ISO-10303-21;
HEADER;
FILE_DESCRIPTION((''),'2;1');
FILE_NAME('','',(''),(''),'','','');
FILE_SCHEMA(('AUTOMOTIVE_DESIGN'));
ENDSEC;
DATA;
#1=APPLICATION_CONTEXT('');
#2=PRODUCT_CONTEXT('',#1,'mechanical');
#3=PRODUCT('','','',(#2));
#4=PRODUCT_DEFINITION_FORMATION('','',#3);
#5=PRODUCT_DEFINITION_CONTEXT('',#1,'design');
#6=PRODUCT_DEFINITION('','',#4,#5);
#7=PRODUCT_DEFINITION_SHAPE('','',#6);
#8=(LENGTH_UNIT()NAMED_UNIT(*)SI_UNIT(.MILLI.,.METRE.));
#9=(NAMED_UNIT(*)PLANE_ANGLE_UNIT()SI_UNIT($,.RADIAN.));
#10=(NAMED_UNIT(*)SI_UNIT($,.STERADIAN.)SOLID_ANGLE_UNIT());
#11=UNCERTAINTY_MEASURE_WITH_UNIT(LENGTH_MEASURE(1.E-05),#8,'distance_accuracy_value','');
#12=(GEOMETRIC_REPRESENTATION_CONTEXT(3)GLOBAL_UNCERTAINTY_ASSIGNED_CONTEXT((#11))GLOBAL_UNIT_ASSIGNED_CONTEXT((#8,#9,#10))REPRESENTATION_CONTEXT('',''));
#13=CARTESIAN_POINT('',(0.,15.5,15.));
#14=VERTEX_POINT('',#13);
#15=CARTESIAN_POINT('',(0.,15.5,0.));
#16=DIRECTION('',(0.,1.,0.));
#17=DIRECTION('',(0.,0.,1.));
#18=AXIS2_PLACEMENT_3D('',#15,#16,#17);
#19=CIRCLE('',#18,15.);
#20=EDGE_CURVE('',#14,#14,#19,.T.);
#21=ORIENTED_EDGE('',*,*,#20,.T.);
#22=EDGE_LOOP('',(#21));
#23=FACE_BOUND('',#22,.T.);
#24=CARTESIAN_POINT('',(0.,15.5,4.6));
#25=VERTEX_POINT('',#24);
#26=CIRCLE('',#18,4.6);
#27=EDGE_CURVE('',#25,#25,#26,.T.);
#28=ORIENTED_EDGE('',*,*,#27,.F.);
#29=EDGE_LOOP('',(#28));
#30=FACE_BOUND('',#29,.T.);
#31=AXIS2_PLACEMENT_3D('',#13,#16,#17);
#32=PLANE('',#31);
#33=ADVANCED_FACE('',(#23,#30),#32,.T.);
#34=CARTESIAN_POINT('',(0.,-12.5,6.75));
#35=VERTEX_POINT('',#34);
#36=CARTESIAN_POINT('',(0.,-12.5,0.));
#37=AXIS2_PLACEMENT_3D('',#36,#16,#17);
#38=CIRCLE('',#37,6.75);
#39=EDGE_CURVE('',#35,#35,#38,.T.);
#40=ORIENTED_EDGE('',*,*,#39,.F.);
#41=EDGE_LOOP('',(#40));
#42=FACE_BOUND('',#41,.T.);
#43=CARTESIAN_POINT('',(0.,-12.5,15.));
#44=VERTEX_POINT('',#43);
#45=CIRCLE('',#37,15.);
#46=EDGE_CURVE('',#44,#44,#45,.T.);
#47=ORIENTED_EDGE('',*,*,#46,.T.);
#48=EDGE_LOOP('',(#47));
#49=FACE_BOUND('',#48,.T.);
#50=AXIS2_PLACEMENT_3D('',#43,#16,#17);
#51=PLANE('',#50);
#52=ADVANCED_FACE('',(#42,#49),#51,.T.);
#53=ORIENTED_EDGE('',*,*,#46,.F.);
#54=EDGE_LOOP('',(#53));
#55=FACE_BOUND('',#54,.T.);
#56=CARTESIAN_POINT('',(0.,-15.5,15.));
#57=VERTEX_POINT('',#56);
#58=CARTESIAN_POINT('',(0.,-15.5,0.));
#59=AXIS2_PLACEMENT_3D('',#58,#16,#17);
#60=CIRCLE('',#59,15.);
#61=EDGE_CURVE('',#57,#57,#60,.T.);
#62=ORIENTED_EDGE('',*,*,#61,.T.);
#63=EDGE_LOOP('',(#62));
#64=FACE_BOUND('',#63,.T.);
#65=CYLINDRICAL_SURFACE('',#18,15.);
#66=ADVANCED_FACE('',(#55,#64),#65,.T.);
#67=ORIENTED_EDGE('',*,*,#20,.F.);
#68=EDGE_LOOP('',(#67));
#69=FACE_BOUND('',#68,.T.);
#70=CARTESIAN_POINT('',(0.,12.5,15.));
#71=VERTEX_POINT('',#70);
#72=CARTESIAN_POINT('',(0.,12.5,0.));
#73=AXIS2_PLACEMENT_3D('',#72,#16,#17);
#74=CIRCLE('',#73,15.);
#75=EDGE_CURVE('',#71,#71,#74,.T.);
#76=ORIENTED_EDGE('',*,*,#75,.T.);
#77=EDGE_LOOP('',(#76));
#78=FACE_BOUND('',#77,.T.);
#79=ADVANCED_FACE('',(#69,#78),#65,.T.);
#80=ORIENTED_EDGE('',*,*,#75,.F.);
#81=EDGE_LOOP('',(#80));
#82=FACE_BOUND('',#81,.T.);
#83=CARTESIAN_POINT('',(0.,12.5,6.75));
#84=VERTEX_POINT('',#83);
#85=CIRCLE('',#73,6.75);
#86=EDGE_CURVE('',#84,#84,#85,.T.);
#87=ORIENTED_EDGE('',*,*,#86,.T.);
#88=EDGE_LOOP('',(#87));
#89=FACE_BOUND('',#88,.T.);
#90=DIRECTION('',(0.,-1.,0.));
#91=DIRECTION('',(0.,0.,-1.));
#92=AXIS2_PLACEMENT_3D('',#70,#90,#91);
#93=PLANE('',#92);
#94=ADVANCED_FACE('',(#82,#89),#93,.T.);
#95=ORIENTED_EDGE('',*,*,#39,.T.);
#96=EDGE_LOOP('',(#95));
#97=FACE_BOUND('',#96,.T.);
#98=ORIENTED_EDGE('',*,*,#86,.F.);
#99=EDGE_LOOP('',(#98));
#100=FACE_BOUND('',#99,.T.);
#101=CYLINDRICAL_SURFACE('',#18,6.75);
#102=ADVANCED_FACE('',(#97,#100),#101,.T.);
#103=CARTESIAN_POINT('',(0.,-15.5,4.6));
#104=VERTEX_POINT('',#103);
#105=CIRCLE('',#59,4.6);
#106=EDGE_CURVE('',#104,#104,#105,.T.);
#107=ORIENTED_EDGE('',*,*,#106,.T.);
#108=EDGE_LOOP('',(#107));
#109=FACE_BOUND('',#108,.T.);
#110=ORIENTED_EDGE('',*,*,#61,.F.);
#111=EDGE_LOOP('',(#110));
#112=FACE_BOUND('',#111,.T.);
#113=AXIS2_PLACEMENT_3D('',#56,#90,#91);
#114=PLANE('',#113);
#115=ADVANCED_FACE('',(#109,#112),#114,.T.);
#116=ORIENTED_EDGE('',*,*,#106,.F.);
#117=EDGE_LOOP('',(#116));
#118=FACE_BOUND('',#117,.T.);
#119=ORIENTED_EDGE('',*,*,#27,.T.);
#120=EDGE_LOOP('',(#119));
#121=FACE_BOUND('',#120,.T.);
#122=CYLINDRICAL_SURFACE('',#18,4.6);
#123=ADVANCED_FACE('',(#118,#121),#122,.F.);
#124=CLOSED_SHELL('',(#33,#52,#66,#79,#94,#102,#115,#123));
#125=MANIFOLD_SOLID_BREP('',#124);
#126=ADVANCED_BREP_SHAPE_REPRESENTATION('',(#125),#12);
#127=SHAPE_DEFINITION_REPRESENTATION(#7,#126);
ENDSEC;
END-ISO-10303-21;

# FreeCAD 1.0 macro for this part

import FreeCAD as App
import Part
import Sketcher
Q = App.Units.Quantity

doc = App.newDocument("Part")
body = doc.addObject("PartDesign::Body", "Body")

sketch1 = body.newObject("Sketcher::SketchObject", "Sketch")
sketch1.AttachmentSupport = (doc.getObject("YZ_Plane"), [""])
sketch1.MapMode = "FlatFace"
sketch1.addGeometry([
    Part.LineSegment(App.Vector(15.5, 15, 0), App.Vector(12.5, 15, 0)),
    Part.LineSegment(App.Vector(12.5, 15, 0), App.Vector(12.5, 6.8, 0)),
    Part.LineSegment(App.Vector(12.5, 6.8, 0), App.Vector(-12.5, 6.8, 0)),
    Part.LineSegment(App.Vector(-12.5, 6.8, 0), App.Vector(-12.5, 15, 0)),
    Part.LineSegment(App.Vector(-12.5, 15, 0), App.Vector(-15.5, 15, 0)),
    Part.LineSegment(App.Vector(-15.5, 15, 0), App.Vector(-15.5, 4.6, 0)),
    Part.LineSegment(App.Vector(-15.5, 4.6, 0), App.Vector(15.5, 4.6, 0)),
    Part.LineSegment(App.Vector(15.5, 4.6, 0), App.Vector(15.5, 15, 0)),
], False)
sketch1.addConstraint([
    Sketcher.Constraint("Coincident", 0, 2, 1, 1),
    Sketcher.Constraint("Coincident", 1, 2, 2, 1),
    Sketcher.Constraint("Coincident", 2, 2, 3, 1),
    Sketcher.Constraint("Coincident", 3, 2, 4, 1),
    Sketcher.Constraint("Coincident", 4, 2, 5, 1),
    Sketcher.Constraint("Coincident", 5, 2, 6, 1),
    Sketcher.Constraint("Coincident", 6, 2, 7, 1),
    Sketcher.Constraint("Coincident", 7, 2, 0, 1),
    Sketcher.Constraint("Horizontal", 0),
    Sketcher.Constraint("Vertical", 1),
    Sketcher.Constraint("Horizontal", 2),
    Sketcher.Constraint("Vertical", 3),
    Sketcher.Constraint("Horizontal", 4),
    Sketcher.Constraint("Vertical", 5),
    Sketcher.Constraint("Horizontal", 6),
    Sketcher.Constraint("Vertical", 7),
    Sketcher.Constraint("Symmetric", 0, 2, 3, 2, -2),
    Sketcher.Constraint("Equal", 0, 4),
    Sketcher.Constraint("DistanceX", 0, 2, 0, 1, Q("3 mm")),
    Sketcher.Constraint("DistanceX", 2, 2, 2, 1, Q("25 mm")),
    Sketcher.Constraint("DistanceY", 5, 2, 5, 1, Q("10.4 mm")),
    Sketcher.Constraint("DistanceY", -1, 1, 0, 2, Q("15 mm")),
    Sketcher.Constraint("DistanceY", 1, 2, 1, 1, Q("8.25 mm")),
])
revolution = body.newObject("PartDesign::Revolution", "Revolution")
revolution.Profile = sketch1
revolution.ReferenceAxis = (sketch1, ["H_Axis"])
revolution.Angle = 360

doc.recompute()
